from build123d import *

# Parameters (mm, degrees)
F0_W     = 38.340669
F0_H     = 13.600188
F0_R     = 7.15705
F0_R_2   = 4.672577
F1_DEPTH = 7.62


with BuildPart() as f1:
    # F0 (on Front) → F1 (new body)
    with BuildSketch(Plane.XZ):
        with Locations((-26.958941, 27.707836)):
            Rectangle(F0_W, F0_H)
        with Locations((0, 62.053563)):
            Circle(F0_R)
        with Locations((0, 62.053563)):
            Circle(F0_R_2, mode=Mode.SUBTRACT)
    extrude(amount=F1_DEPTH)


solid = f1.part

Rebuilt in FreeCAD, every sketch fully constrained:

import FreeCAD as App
import Part
import Sketcher

V = App.Vector
Q = App.Units.Quantity

doc = App.newDocument("Part")
params = doc.addObject("Spreadsheet::Sheet", "Params")
for row, (alias, value) in enumerate([
    ("pad1_length", "0.3 in"),
], start=1):
    params.set(f"A{row}", alias)
    params.set(f"B{row}", "=" + value)
    params.setAlias(f"B{row}", alias)

body = doc.addObject("PartDesign::Body", "Body")
body.AllowCompound = True

sketch1 = body.newObject("Sketcher::SketchObject", "Sketch")
sketch1.AttachmentSupport = (doc.getObject("XZ_Plane"), [""])
sketch1.MapMode = "FlatFace"
sketch1.addGeometry(Part.LineSegment(V(-46.1, 34.5, 0), V(-46.1, 20.9, 0)), False)
sketch1.addGeometry(Part.LineSegment(V(-46.1, 20.9, 0), V(-7.8, 20.9, 0)), False)
sketch1.addGeometry(Part.LineSegment(V(-7.8, 20.9, 0), V(-7.8, 34.5, 0)), False)
sketch1.addGeometry(Part.LineSegment(V(-7.8, 34.5, 0), V(-46.1, 34.5, 0)), False)
sketch1.addGeometry(Part.Circle(V(0, 62.1, 0), V(0, 0, 1), 7.2), False)
sketch1.addGeometry(Part.Circle(V(0, 62.1, 0), V(0, 0, 1), 4.7), False)
sketch1.addConstraint(Sketcher.Constraint("Coincident", 0, 2, 1, 1))
sketch1.addConstraint(Sketcher.Constraint("Coincident", 1, 2, 2, 1))
sketch1.addConstraint(Sketcher.Constraint("Coincident", 2, 2, 3, 1))
sketch1.addConstraint(Sketcher.Constraint("Coincident", 3, 2, 0, 1))
sketch1.addConstraint(Sketcher.Constraint("Vertical", 0))
sketch1.addConstraint(Sketcher.Constraint("Horizontal", 1))
sketch1.addConstraint(Sketcher.Constraint("Vertical", 2))
sketch1.addConstraint(Sketcher.Constraint("Horizontal", 3))
sketch1.addConstraint(Sketcher.Constraint("Coincident", 5, 3, 4, 3))
sketch1.addConstraint(Sketcher.Constraint("PointOnObject", 4, 3, -2))
sketch1.addConstraint(Sketcher.Constraint("Diameter", 4, Q("14.3141 mm")))
sketch1.addConstraint(Sketcher.Constraint("Diameter", 5, Q("9.345154 mm")))
sketch1.addConstraint(Sketcher.Constraint("DistanceX", 1, 1, 1, 2, Q("38.340669 mm")))
sketch1.addConstraint(Sketcher.Constraint("DistanceY", 0, 2, 0, 1, Q("13.600188 mm")))
sketch1.addConstraint(Sketcher.Constraint("DistanceY", -1, 1, 0, 2, Q("20.907742 mm")))
sketch1.addConstraint(Sketcher.Constraint("DistanceY", 0, 2, 4, 3, Q("41.145821 mm")))
sketch1.addConstraint(Sketcher.Constraint("DistanceX", 0, 2, -1, 1, Q("46.129275 mm")))
pad1 = body.newObject("PartDesign::Pad", "Pad")
pad1.Profile = sketch1
pad1.setExpression("Length", "Params.pad1_length")

doc.recompute()
